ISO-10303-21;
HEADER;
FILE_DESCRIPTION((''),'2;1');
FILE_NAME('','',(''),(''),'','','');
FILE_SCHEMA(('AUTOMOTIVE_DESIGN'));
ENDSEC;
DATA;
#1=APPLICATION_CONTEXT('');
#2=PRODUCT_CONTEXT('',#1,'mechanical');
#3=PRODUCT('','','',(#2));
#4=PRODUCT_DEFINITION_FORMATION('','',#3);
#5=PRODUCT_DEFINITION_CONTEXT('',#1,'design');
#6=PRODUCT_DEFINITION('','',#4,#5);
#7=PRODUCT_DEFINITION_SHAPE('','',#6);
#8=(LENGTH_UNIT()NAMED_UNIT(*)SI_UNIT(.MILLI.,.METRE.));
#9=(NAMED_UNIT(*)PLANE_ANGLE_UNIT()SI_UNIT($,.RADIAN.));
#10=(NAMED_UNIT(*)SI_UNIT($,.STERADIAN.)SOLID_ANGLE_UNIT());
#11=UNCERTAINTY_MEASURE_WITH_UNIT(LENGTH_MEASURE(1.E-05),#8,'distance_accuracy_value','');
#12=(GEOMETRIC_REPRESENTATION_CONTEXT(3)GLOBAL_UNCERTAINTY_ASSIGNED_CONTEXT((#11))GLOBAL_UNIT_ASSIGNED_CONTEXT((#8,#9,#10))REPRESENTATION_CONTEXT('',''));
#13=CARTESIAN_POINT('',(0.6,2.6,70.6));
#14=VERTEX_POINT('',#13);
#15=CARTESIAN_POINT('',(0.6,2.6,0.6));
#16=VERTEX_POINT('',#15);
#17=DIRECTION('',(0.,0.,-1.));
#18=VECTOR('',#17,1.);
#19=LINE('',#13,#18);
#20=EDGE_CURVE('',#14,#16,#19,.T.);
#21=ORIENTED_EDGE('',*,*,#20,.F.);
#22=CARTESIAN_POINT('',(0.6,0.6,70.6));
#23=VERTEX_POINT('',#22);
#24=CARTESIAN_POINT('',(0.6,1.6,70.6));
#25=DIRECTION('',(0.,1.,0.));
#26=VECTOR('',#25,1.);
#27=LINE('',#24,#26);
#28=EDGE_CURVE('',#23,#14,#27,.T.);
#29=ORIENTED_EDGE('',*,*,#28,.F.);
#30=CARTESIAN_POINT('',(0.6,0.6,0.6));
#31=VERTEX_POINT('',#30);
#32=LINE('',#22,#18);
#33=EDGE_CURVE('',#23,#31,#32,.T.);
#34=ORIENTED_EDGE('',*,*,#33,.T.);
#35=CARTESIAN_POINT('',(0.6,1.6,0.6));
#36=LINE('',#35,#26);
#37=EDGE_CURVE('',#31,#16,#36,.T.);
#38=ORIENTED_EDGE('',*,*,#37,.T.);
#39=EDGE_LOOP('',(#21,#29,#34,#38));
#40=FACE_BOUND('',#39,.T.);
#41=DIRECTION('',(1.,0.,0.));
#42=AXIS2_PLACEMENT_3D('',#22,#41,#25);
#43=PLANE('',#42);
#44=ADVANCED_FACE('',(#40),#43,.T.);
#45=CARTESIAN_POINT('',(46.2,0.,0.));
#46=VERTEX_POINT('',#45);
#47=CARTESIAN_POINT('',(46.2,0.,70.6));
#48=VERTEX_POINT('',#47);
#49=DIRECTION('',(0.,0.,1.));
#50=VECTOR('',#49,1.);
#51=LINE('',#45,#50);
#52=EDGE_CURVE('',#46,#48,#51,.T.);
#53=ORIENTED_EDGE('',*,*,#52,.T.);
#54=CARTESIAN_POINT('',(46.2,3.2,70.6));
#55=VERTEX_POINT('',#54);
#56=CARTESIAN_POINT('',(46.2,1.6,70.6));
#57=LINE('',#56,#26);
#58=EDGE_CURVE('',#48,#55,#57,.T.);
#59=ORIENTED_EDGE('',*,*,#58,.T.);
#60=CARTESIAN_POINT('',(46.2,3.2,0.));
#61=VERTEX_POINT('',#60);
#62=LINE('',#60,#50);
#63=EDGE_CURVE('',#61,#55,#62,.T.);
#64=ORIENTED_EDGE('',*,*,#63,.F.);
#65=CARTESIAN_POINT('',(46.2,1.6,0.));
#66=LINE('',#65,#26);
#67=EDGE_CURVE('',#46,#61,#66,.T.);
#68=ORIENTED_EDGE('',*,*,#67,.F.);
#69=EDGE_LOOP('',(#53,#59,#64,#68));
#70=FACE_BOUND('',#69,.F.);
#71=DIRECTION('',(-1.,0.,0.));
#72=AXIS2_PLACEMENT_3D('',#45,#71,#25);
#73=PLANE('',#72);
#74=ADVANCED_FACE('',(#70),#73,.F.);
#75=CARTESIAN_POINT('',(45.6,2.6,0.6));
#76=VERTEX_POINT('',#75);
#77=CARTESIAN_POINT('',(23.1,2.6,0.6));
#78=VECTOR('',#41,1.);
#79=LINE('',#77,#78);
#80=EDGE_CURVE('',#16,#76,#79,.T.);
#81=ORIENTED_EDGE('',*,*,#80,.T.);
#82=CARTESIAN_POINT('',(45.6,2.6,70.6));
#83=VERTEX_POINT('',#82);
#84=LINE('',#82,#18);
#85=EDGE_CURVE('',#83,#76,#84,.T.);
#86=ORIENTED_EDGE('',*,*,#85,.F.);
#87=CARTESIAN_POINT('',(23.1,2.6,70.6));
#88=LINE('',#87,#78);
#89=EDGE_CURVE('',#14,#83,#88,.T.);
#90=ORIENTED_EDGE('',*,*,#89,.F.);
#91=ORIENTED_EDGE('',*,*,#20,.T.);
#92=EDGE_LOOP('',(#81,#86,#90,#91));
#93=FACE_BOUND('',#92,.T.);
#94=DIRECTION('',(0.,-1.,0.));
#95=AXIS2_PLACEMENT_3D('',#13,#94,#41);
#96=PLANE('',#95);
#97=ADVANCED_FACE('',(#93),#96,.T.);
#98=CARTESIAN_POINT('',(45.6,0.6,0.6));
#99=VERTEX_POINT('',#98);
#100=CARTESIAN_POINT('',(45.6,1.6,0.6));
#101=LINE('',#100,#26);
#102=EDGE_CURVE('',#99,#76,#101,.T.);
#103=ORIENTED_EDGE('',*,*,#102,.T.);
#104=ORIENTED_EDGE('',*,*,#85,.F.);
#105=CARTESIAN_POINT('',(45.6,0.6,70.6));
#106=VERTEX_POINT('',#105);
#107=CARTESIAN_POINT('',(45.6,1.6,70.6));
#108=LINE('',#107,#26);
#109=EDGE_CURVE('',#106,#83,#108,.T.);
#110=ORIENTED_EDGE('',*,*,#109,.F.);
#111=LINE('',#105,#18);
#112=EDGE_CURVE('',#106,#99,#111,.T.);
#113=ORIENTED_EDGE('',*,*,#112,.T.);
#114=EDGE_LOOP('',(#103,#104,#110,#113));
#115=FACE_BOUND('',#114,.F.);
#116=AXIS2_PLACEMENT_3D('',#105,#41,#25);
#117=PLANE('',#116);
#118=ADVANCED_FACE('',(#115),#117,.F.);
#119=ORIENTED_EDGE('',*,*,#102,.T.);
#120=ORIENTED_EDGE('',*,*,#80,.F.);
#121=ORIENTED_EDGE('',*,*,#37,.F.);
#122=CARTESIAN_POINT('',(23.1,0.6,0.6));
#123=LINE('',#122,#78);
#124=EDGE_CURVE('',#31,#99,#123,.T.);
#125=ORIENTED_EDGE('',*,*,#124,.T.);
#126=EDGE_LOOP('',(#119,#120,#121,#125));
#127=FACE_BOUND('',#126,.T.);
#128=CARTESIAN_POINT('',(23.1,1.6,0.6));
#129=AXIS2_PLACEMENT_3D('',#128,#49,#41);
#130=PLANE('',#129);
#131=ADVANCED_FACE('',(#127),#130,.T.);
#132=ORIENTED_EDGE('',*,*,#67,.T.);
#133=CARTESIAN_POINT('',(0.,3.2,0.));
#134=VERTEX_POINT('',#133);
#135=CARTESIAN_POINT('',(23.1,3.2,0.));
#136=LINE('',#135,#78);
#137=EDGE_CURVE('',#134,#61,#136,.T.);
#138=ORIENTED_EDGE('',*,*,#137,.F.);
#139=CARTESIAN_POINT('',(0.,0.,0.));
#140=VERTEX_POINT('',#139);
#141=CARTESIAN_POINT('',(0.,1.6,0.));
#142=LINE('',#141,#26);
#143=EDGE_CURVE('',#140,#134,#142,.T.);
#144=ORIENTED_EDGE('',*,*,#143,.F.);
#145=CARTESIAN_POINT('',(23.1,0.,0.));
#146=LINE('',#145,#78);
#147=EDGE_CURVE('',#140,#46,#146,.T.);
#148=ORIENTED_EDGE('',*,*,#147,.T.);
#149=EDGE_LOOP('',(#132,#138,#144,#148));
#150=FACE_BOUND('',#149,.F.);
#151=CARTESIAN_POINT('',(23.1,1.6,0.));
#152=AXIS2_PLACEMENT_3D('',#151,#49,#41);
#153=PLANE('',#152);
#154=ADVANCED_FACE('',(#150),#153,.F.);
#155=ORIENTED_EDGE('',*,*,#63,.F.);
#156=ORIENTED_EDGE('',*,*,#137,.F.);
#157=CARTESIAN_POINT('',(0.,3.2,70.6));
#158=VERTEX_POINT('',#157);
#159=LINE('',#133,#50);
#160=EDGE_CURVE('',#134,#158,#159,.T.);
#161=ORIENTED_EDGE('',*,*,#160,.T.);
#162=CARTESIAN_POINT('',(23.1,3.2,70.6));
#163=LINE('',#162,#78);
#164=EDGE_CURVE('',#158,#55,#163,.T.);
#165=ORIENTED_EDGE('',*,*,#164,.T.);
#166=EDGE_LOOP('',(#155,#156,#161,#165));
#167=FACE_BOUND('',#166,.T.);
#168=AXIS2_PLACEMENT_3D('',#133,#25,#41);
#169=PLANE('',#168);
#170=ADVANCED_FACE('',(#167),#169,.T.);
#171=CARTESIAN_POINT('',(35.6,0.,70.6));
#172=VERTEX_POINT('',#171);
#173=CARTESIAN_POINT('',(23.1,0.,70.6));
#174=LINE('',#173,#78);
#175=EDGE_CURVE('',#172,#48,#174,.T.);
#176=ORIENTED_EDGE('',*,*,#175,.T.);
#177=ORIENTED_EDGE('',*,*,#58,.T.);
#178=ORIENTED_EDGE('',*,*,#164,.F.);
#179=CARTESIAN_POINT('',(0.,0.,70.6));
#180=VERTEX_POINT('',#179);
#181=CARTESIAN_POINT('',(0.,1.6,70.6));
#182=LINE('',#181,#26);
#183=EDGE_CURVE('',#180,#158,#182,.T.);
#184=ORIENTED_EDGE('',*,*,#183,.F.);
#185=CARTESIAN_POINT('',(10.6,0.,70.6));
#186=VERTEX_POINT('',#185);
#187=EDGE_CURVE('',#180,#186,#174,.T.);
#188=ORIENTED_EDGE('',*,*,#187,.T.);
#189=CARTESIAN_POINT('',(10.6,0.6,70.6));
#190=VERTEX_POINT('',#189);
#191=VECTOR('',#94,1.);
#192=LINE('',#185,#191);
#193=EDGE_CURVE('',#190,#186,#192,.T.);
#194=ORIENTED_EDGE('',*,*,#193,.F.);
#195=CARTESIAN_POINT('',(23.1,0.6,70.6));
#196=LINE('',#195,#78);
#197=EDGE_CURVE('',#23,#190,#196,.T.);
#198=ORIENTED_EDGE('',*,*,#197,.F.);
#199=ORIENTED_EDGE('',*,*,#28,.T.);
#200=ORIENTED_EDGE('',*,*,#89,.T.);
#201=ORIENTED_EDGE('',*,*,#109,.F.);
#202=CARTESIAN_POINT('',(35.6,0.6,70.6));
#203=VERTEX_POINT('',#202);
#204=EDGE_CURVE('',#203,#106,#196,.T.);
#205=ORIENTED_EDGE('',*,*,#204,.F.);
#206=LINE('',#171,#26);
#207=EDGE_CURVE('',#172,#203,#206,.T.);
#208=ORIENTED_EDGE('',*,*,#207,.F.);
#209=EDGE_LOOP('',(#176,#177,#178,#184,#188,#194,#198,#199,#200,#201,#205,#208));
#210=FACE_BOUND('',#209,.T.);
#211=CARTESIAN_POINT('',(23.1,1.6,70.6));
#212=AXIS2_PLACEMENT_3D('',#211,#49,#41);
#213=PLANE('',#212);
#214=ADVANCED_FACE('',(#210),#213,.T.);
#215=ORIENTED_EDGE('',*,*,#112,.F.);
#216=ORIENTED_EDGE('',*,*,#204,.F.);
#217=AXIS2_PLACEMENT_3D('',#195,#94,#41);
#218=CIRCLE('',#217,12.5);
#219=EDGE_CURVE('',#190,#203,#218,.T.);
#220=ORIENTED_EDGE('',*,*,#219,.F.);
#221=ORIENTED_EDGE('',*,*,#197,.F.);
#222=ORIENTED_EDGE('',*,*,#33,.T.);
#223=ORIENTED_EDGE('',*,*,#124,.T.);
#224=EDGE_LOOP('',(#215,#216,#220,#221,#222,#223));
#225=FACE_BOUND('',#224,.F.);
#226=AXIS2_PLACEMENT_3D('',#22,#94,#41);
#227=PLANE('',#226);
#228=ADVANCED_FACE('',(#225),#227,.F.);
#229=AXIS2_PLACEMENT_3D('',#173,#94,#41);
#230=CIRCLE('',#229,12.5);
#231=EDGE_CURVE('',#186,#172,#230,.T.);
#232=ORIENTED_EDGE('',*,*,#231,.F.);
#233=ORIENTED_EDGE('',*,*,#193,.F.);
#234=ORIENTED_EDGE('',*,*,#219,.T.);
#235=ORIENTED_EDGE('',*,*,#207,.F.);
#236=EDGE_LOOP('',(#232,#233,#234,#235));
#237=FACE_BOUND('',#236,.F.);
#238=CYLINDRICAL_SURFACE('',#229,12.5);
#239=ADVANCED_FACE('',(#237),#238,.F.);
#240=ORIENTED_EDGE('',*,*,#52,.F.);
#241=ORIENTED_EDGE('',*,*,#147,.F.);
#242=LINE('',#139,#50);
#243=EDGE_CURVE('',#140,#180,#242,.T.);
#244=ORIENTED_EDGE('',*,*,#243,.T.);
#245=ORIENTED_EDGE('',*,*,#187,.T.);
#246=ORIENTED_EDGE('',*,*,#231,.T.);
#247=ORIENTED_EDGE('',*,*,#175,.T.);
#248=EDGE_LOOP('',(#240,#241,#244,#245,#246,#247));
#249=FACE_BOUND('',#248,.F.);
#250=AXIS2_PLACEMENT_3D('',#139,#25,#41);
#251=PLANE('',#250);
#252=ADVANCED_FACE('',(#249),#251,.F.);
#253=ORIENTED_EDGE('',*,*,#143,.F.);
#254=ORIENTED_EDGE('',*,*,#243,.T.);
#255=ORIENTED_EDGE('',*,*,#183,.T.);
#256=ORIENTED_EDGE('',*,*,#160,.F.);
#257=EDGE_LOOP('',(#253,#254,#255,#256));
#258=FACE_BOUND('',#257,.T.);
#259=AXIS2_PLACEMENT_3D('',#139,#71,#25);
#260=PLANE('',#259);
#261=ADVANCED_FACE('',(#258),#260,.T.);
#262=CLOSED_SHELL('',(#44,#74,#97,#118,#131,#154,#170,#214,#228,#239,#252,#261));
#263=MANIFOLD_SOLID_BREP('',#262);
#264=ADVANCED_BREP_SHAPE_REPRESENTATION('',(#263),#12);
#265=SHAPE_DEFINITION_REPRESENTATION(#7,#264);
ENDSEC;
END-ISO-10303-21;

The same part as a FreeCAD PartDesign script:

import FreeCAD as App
import Part
import Sketcher

doc = App.newDocument("Part")
body = doc.addObject("PartDesign::Body", "Body")

# Sketch on XY plane
sketch1 = body.newObject("Sketcher::SketchObject", "Sketch")
sketch1.AttachmentSupport = (doc.getObject("XY_Plane"), [""])
sketch1.MapMode = "FlatFace"
sketch1.addGeometry(Part.LineSegment(App.Vector(0, 3.2, 0), App.Vector(0, 0, 0)), False)
sketch1.addGeometry(Part.LineSegment(App.Vector(0, 0, 0), App.Vector(46.2, 0, 0)), False)
sketch1.addGeometry(Part.LineSegment(App.Vector(46.2, 0, 0), App.Vector(46.2, 3.2, 0)), False)
sketch1.addGeometry(Part.LineSegment(App.Vector(46.2, 3.2, 0), App.Vector(0, 3.2, 0)), False)
sketch1.addConstraint(Sketcher.Constraint("Coincident", 0, 2, 1, 1))
sketch1.addConstraint(Sketcher.Constraint("Coincident", 1, 2, 2, 1))
sketch1.addConstraint(Sketcher.Constraint("Coincident", 2, 2, 3, 1))
sketch1.addConstraint(Sketcher.Constraint("Coincident", 3, 2, 0, 1))
sketch1.addConstraint(Sketcher.Constraint("Vertical", 0))
sketch1.addConstraint(Sketcher.Constraint("Horizontal", 1))
sketch1.addConstraint(Sketcher.Constraint("Vertical", 2))
sketch1.addConstraint(Sketcher.Constraint("Horizontal", 3))
sketch1.addConstraint(Sketcher.Constraint("Coincident", 0, 2, -1, 1))
sketch1.addConstraint(Sketcher.Constraint("DistanceX", 1, 1, 1, 2, 46.2))
sketch1.addConstraint(Sketcher.Constraint("DistanceY", 0, 2, 0, 1, 3.2))
pad1 = body.newObject("PartDesign::Pad", "Pad")
pad1.Profile = sketch1
pad1.Length = 70.6

# Sketch on XY plane
sketch2 = body.newObject("Sketcher::SketchObject", "Sketch001")
sketch2.AttachmentSupport = (doc.getObject("XY_Plane"), [""])
sketch2.MapMode = "FlatFace"
sketch2.AttachmentOffset = App.Placement(App.Vector(0, 0, 70.6), App.Rotation())
sketch2.addGeometry(Part.LineSegment(App.Vector(0.6, 2.6, 0), App.Vector(0.6, 0.6, 0)), False)
sketch2.addGeometry(Part.LineSegment(App.Vector(0.6, 0.6, 0), App.Vector(45.6, 0.6, 0)), False)
sketch2.addGeometry(Part.LineSegment(App.Vector(45.6, 0.6, 0), App.Vector(45.6, 2.6, 0)), False)
sketch2.addGeometry(Part.LineSegment(App.Vector(45.6, 2.6, 0), App.Vector(0.6, 2.6, 0)), False)
sketch2.addConstraint(Sketcher.Constraint("Coincident", 0, 2, 1, 1))
sketch2.addConstraint(Sketcher.Constraint("Coincident", 1, 2, 2, 1))
sketch2.addConstraint(Sketcher.Constraint("Coincident", 2, 2, 3, 1))
sketch2.addConstraint(Sketcher.Constraint("Coincident", 3, 2, 0, 1))
sketch2.addConstraint(Sketcher.Constraint("Vertical", 0))
sketch2.addConstraint(Sketcher.Constraint("Horizontal", 1))
sketch2.addConstraint(Sketcher.Constraint("Vertical", 2))
sketch2.addConstraint(Sketcher.Constraint("Horizontal", 3))
sketch2.addConstraint(Sketcher.Constraint("DistanceX", 1, 1, 1, 2, 45.0))
sketch2.addConstraint(Sketcher.Constraint("DistanceY", 0, 2, 0, 1, 2.0))
sketch2.addConstraint(Sketcher.Constraint("DistanceX", -1, 1, 0, 2, 0.6))
sketch2.addConstraint(Sketcher.Constraint("DistanceY", -1, 1, 0, 2, 0.6))
pocket1 = body.newObject("PartDesign::Pocket", "Pocket")
pocket1.Profile = sketch2
pocket1.Length = 70

# Sketch on XZ plane
sketch3 = body.newObject("Sketcher::SketchObject", "Sketch002")
sketch3.AttachmentSupport = (doc.getObject("XZ_Plane"), [""])
sketch3.MapMode = "FlatFace"
sketch3.addGeometry(Part.Circle(App.Vector(23, 71, 0), App.Vector(0, 0, 1), 12), False)
sketch3.addConstraint(Sketcher.Constraint("Diameter", 0, 25.0))
sketch3.addConstraint(Sketcher.Constraint("DistanceX", -1, 1, 0, 3, 23.1))
sketch3.addConstraint(Sketcher.Constraint("DistanceY", -1, 1, 0, 3, 70.6))
pocket2 = body.newObject("PartDesign::Pocket", "Pocket001")
pocket2.Profile = sketch3
pocket2.Length = 0.6

doc.recompute()
